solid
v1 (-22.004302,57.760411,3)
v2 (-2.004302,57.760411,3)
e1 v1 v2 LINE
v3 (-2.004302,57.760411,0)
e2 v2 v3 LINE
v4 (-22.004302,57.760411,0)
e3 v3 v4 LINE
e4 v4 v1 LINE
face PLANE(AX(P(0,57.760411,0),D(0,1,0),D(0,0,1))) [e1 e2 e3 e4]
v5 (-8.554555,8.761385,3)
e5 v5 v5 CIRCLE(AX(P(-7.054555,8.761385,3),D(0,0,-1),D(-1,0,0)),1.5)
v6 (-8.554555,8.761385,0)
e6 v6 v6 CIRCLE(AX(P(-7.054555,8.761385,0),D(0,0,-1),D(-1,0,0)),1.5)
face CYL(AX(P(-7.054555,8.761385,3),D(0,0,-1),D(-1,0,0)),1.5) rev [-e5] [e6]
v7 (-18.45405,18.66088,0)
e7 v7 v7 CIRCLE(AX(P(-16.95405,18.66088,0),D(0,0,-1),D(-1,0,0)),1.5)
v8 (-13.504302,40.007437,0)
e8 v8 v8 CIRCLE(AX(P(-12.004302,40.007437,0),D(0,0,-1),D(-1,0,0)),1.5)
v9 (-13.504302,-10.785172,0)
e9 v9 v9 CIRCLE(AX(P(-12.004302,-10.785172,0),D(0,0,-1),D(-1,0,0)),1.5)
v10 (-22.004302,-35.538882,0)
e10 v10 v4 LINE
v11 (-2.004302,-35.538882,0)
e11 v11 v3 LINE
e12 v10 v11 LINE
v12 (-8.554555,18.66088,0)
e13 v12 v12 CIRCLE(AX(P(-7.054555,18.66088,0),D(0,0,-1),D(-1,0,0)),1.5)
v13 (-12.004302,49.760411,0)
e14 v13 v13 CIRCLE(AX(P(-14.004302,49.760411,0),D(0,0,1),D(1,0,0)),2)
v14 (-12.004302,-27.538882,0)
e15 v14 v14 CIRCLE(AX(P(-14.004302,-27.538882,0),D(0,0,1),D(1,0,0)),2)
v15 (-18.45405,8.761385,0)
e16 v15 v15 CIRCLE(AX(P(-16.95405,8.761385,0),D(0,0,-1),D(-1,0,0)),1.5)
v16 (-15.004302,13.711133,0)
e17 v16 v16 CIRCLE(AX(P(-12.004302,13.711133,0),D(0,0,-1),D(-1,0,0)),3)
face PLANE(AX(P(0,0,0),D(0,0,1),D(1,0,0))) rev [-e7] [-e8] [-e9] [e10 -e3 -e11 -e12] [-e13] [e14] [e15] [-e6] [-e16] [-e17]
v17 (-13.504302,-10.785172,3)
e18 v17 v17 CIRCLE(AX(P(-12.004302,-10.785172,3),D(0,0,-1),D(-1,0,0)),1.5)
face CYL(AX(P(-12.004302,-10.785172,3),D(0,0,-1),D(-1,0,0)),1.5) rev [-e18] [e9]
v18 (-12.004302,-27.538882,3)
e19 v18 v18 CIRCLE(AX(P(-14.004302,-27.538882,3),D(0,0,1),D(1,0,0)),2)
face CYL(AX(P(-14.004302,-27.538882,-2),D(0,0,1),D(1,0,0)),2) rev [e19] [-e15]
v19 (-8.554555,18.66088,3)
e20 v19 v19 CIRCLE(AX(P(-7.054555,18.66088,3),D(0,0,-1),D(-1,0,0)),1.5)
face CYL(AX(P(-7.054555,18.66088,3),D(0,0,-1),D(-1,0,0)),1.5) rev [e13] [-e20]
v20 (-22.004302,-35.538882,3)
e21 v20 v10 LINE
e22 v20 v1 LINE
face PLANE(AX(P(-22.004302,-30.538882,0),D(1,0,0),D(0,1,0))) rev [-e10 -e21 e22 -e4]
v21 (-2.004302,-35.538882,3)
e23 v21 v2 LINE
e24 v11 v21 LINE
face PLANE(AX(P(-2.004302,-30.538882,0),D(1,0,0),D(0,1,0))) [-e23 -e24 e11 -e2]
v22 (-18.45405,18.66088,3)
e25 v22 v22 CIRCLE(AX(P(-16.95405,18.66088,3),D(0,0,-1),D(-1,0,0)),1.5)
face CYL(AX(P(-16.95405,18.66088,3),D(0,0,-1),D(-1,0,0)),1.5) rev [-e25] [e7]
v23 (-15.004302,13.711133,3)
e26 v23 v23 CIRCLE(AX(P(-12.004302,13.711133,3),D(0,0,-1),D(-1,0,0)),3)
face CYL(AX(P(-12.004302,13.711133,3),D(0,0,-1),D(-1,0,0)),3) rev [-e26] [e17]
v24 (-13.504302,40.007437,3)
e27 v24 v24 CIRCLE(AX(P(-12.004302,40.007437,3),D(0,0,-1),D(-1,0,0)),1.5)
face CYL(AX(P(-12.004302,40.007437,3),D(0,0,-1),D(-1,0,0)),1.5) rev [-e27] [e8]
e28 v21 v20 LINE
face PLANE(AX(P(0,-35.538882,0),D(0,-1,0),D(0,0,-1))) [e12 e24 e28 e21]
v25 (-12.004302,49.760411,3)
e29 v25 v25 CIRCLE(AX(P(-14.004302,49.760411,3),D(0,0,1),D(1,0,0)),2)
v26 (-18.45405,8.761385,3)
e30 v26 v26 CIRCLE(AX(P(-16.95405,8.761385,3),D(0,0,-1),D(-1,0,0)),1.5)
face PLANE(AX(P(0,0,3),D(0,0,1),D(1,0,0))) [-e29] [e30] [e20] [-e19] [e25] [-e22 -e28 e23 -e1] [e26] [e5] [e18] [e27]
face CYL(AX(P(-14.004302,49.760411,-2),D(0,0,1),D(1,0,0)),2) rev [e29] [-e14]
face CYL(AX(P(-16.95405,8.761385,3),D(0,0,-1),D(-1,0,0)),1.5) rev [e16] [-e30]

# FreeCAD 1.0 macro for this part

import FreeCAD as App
import Part
import Sketcher
from FreeCAD import Vector
Q = App.Units.Quantity

doc = App.newDocument("Part")
body = doc.addObject("PartDesign::Body", "Body")

# Sketch on XY plane
sketch1 = doc.addObject("Sketcher::SketchObject", "Sketch")
body.addObject(sketch1)
sketch1.AttachmentSupport = (doc.XY_Plane, [""])
sketch1.MapMode = "FlatFace"
sketch1.addGeometry(Part.LineSegment(Vector(-85.471866, 52.760411, 0), Vector(-85.471866, -52.760411, 0)), False)
sketch1.addGeometry(Part.LineSegment(Vector(-85.471866, -52.760411, 0), Vector(85.471866, -52.760411, 0)), False)
sketch1.addGeometry(Part.LineSegment(Vector(85.471866, -52.760411, 0), Vector(85.471866, 52.760411, 0)), False)
sketch1.addGeometry(Part.LineSegment(Vector(85.471866, 52.760411, 0), Vector(-85.471866, 52.760411, 0)), False)
sketch1.addConstraint(Sketcher.Constraint("Coincident", 0, 2, 1, 1))
sketch1.addConstraint(Sketcher.Constraint("Coincident", 1, 2, 2, 1))
sketch1.addConstraint(Sketcher.Constraint("Coincident", 2, 2, 3, 1))
sketch1.addConstraint(Sketcher.Constraint("Coincident", 3, 2, 0, 1))
sketch1.addConstraint(Sketcher.Constraint("Vertical", 0))
sketch1.addConstraint(Sketcher.Constraint("Horizontal", 1))
sketch1.addConstraint(Sketcher.Constraint("Vertical", 2))
sketch1.addConstraint(Sketcher.Constraint("Horizontal", 3))
sketch1.addConstraint(Sketcher.Constraint("Symmetric", 0, 2, 2, 2, -1, 1))
sketch1.addConstraint(Sketcher.Constraint("DistanceX", 1, 1, 1, 2, Q("170.943733 mm")))
sketch1.addConstraint(Sketcher.Constraint("DistanceY", 0, 2, 0, 1, Q("105.520823 mm")))
pad1 = doc.addObject("PartDesign::Pad", "Pad")
body.addObject(pad1)
pad1.Profile = sketch1
pad1.Length = 3

# Sketch on XY plane
sketch2 = doc.addObject("Sketcher::SketchObject", "Sketch001")
body.addObject(sketch2)
sketch2.AttachmentSupport = (doc.XY_Plane, [""])
sketch2.MapMode = "FlatFace"
sketch2.AttachmentOffset = App.Placement(Vector(0, 0, 3), App.Rotation())
sketch2.addGeometry(Part.LineSegment(Vector(-106.563, 73.851, 0), Vector(-106.563, -73.851, 0)), False)
sketch2.addGeometry(Part.LineSegment(Vector(-106.563, -73.851, 0), Vector(106.563, -73.851, 0)), False)
sketch2.addGeometry(Part.LineSegment(Vector(106.563, -73.851, 0), Vector(106.563, 73.851, 0)), False)
sketch2.addGeometry(Part.LineSegment(Vector(106.563, 73.851, 0), Vector(-106.563, 73.851, 0)), False)
sketch2.addGeometry(Part.LineSegment(Vector(-2.004302, -30.538882, 0), Vector(-22.004302, -30.538882, 0)), False)
sketch2.addGeometry(Part.LineSegment(Vector(-22.004302, -30.538882, 0), Vector(-22.004302, 57.961147, 0)), False)
sketch2.addGeometry(Part.LineSegment(Vector(-22.004302, 57.961147, 0), Vector(-2.004302, 57.961147, 0)), False)
sketch2.addGeometry(Part.LineSegment(Vector(-2.004302, 57.961147, 0), Vector(-2.004302, -30.538882, 0)), False)
sketch2.addConstraint(Sketcher.Constraint("Coincident", 0, 2, 1, 1))
sketch2.addConstraint(Sketcher.Constraint("Coincident", 1, 2, 2, 1))
sketch2.addConstraint(Sketcher.Constraint("Coincident", 2, 2, 3, 1))
sketch2.addConstraint(Sketcher.Constraint("Coincident", 3, 2, 0, 1))
sketch2.addConstraint(Sketcher.Constraint("Coincident", 4, 2, 5, 1))
sketch2.addConstraint(Sketcher.Constraint("Coincident", 5, 2, 6, 1))
sketch2.addConstraint(Sketcher.Constraint("Coincident", 6, 2, 7, 1))
sketch2.addConstraint(Sketcher.Constraint("Coincident", 7, 2, 4, 1))
sketch2.addConstraint(Sketcher.Constraint("Vertical", 0))
sketch2.addConstraint(Sketcher.Constraint("Horizontal", 1))
sketch2.addConstraint(Sketcher.Constraint("Vertical", 2))
sketch2.addConstraint(Sketcher.Constraint("Horizontal", 3))
sketch2.addConstraint(Sketcher.Constraint("Horizontal", 4))
sketch2.addConstraint(Sketcher.Constraint("Vertical", 5))
sketch2.addConstraint(Sketcher.Constraint("Horizontal", 6))
sketch2.addConstraint(Sketcher.Constraint("Vertical", 7))
sketch2.addConstraint(Sketcher.Constraint("Symmetric", 0, 2, 2, 2, -1, 1))
sketch2.addConstraint(Sketcher.Constraint("DistanceX", 4, 2, 4, 1, Q("20 mm")))
sketch2.addConstraint(Sketcher.Constraint("DistanceX", 1, 1, 1, 2, Q("213.126 mm")))
sketch2.addConstraint(Sketcher.Constraint("DistanceY", 0, 2, 0, 1, Q("147.702 mm")))
sketch2.addConstraint(Sketcher.Constraint("DistanceY", 5, 1, 5, 2, Q("88.500029 mm")))
sketch2.addConstraint(Sketcher.Constraint("DistanceY", 4, 2, -1, 1, Q("30.538882 mm")))
sketch2.addConstraint(Sketcher.Constraint("DistanceX", 4, 2, -1, 1, Q("22.004302 mm")))
pocket1 = doc.addObject("PartDesign::Pocket", "Pocket")
body.addObject(pocket1)
pocket1.Profile = sketch2
pocket1.Type = "ThroughAll"

# Sketch on XY plane
sketch3 = doc.addObject("Sketcher::SketchObject", "Sketch002")
body.addObject(sketch3)
sketch3.AttachmentSupport = (doc.XY_Plane, [""])
sketch3.MapMode = "FlatFace"
sketch3.addGeometry(Part.Circle(Vector(-7.054555, 18.66088, 0), Vector(0, 0, 1), 1.5), False)
sketch3.addGeometry(Part.Circle(Vector(-16.95405, 18.66088, 0), Vector(0, 0, 1), 1.5), False)
sketch3.addGeometry(Part.Circle(Vector(-16.95405, 8.761385, 0), Vector(0, 0, 1), 1.5), False)
sketch3.addGeometry(Part.Circle(Vector(-7.054555, 8.761385, 0), Vector(0, 0, 1), 1.5), False)
sketch3.addGeometry(Part.Circle(Vector(-12.004302, 13.711133, 0), Vector(0, 0, 1), 3), False)
sketch3.addConstraint(Sketcher.Constraint("Equal", 0, 1))
sketch3.addConstraint(Sketcher.Constraint("Equal", 1, 2))
sketch3.addConstraint(Sketcher.Constraint("Equal", 2, 3))
sketch3.addConstraint(Sketcher.Constraint("Horizontal", 0, 3, 1, 3))
sketch3.addConstraint(Sketcher.Constraint("Horizontal", 2, 3, 3, 3))
sketch3.addConstraint(Sketcher.Constraint("Vertical", 1, 3, 2, 3))
sketch3.addConstraint(Sketcher.Constraint("Vertical", 0, 3, 3, 3))
sketch3.addConstraint(Sketcher.Constraint("Diameter", 0, Q("3 mm")))
sketch3.addConstraint(Sketcher.Constraint("Diameter", 4, Q("6 mm")))
sketch3.addConstraint(Sketcher.Constraint("DistanceY", -1, 1, 0, 3, Q("18.66088 mm")))
sketch3.addConstraint(Sketcher.Constraint("DistanceX", 1, 3, -1, 1, Q("16.95405 mm")))
sketch3.addConstraint(Sketcher.Constraint("DistanceX", 0, 3, -1, 1, Q("7.054555 mm")))
sketch3.addConstraint(Sketcher.Constraint("DistanceY", -1, 1, 2, 3, Q("8.761385 mm")))
sketch3.addConstraint(Sketcher.Constraint("DistanceX", 4, 3, -1, 1, Q("12.004302 mm")))
sketch3.addConstraint(Sketcher.Constraint("DistanceY", -1, 1, 4, 3, Q("13.711133 mm")))
pocket2 = doc.addObject("PartDesign::Pocket", "Pocket001")
body.addObject(pocket2)
pocket2.Profile = sketch3
pocket2.Type = "ThroughAll"
pocket2.Reversed = True

# Sketch on XY plane
sketch4 = doc.addObject("Sketcher::SketchObject", "Sketch003")
body.addObject(sketch4)
sketch4.AttachmentSupport = (doc.XY_Plane, [""])
sketch4.MapMode = "FlatFace"
sketch4.addGeometry(Part.Circle(Vector(-12.004302, 40.007437, 0), Vector(0, 0, 1), 1.5), False)
sketch4.addGeometry(Part.Circle(Vector(-12.004302, -10.785172, 0), Vector(0, 0, 1), 1.5), False)
sketch4.addConstraint(Sketcher.Constraint("Equal", 0, 1))
sketch4.addConstraint(Sketcher.Constraint("Vertical", 0, 3, 1, 3))
sketch4.addConstraint(Sketcher.Constraint("Diameter", 0, Q("3 mm")))
sketch4.addConstraint(Sketcher.Constraint("DistanceY", 1, 3, -1, 1, Q("10.785172 mm")))
sketch4.addConstraint(Sketcher.Constraint("DistanceY", 1, 3, 0, 3, Q("50.792609 mm")))
sketch4.addConstraint(Sketcher.Constraint("DistanceX", 0, 3, -1, 1, Q("12.004302 mm")))
pocket3 = doc.addObject("PartDesign::Pocket", "Pocket002")
body.addObject(pocket3)
pocket3.Profile = sketch4
pocket3.Type = "ThroughAll"
pocket3.Reversed = True

# Sketch on XZ plane
sketch5 = doc.addObject("Sketcher::SketchObject", "Sketch004")
body.addObject(sketch5)
sketch5.AttachmentSupport = (doc.XZ_Plane, [""])
sketch5.MapMode = "FlatFace"
sketch5.AttachmentOffset = App.Placement(Vector(0, 0, -52.760411), App.Rotation())
sketch5.addGeometry(Part.LineSegment(Vector(-22.004302, 0, 0), Vector(-22.004302, 3, 0)), False)
sketch5.addGeometry(Part.LineSegment(Vector(-22.004302, 3, 0), Vector(-2.004302, 3, 0)), False)
sketch5.addGeometry(Part.LineSegment(Vector(-2.004302, 3, 0), Vector(-2.004302, 0, 0)), False)
sketch5.addGeometry(Part.LineSegment(Vector(-2.004302, 0, 0), Vector(-22.004302, 0, 0)), False)
sketch5.addConstraint(Sketcher.Constraint("Coincident", 0, 2, 1, 1))
sketch5.addConstraint(Sketcher.Constraint("Coincident", 1, 2, 2, 1))
sketch5.addConstraint(Sketcher.Constraint("Coincident", 2, 2, 3, 1))
sketch5.addConstraint(Sketcher.Constraint("Coincident", 3, 2, 0, 1))
sketch5.addConstraint(Sketcher.Constraint("Vertical", 0))
sketch5.addConstraint(Sketcher.Constraint("Horizontal", 1))
sketch5.addConstraint(Sketcher.Constraint("Vertical", 2))
sketch5.addConstraint(Sketcher.Constraint("Horizontal", 3))
sketch5.addConstraint(Sketcher.Constraint("PointOnObject", 2, 2, -1))
sketch5.addConstraint(Sketcher.Constraint("DistanceX", 1, 1, 1, 2, Q("20 mm")))
sketch5.addConstraint(Sketcher.Constraint("DistanceY", 0, 1, 0, 2, Q("3 mm")))
sketch5.addConstraint(Sketcher.Constraint("DistanceX", 0, 2, -1, 1, Q("22.004302 mm")))
pad2 = doc.addObject("PartDesign::Pad", "Pad001")
body.addObject(pad2)
pad2.Profile = sketch5
pad2.Length = 5
pad2.Reversed = True

# Sketch on XZ plane
sketch6 = doc.addObject("Sketcher::SketchObject", "Sketch005")
body.addObject(sketch6)
sketch6.AttachmentSupport = (doc.XZ_Plane, [""])
sketch6.MapMode = "FlatFace"
sketch6.AttachmentOffset = App.Placement(Vector(0, 0, 30.538882), App.Rotation())
sketch6.addGeometry(Part.LineSegment(Vector(-22.004302, 3, 0), Vector(-22.004302, 0, 0)), False)
sketch6.addGeometry(Part.LineSegment(Vector(-22.004302, 0, 0), Vector(-2.004302, 0, 0)), False)
sketch6.addGeometry(Part.LineSegment(Vector(-2.004302, 0, 0), Vector(-2.004302, 3, 0)), False)
sketch6.addGeometry(Part.LineSegment(Vector(-2.004302, 3, 0), Vector(-22.004302, 3, 0)), False)
sketch6.addConstraint(Sketcher.Constraint("Coincident", 0, 2, 1, 1))
sketch6.addConstraint(Sketcher.Constraint("Coincident", 1, 2, 2, 1))
sketch6.addConstraint(Sketcher.Constraint("Coincident", 2, 2, 3, 1))
sketch6.addConstraint(Sketcher.Constraint("Coincident", 3, 2, 0, 1))
sketch6.addConstraint(Sketcher.Constraint("Vertical", 0))
sketch6.addConstraint(Sketcher.Constraint("Horizontal", 1))
sketch6.addConstraint(Sketcher.Constraint("Vertical", 2))
sketch6.addConstraint(Sketcher.Constraint("Horizontal", 3))
sketch6.addConstraint(Sketcher.Constraint("PointOnObject", 0, 2, -1))
sketch6.addConstraint(Sketcher.Constraint("DistanceX", 1, 1, 1, 2, Q("20 mm")))
sketch6.addConstraint(Sketcher.Constraint("DistanceY", 0, 2, 0, 1, Q("3 mm")))
sketch6.addConstraint(Sketcher.Constraint("DistanceX", 0, 2, -1, 1, Q("22.004302 mm")))
pad3 = doc.addObject("PartDesign::Pad", "Pad002")
body.addObject(pad3)
pad3.Profile = sketch6
pad3.Length = 5

# Sketch on XY plane
sketch7 = doc.addObject("Sketcher::SketchObject", "Sketch006")
body.addObject(sketch7)
sketch7.AttachmentSupport = (doc.XY_Plane, [""])
sketch7.MapMode = "FlatFace"
sketch7.AttachmentOffset = App.Placement(Vector(0, 0, 3), App.Rotation())
sketch7.addGeometry(Part.Circle(Vector(-14.004302, 49.760411, 0), Vector(0, 0, 1), 2), False)
sketch7.addGeometry(Part.Circle(Vector(-14.004302, -27.538882, 0), Vector(0, 0, 1), 2), False)
sketch7.addConstraint(Sketcher.Constraint("Equal", 0, 1))
sketch7.addConstraint(Sketcher.Constraint("Vertical", 0, 3, 1, 3))
sketch7.addConstraint(Sketcher.Constraint("Diameter", 0, Q("4 mm")))
sketch7.addConstraint(Sketcher.Constraint("DistanceY", -1, 1, 0, 3, Q("49.760411 mm")))
sketch7.addConstraint(Sketcher.Constraint("DistanceY", 1, 3, -1, 1, Q("27.538882 mm")))
sketch7.addConstraint(Sketcher.Constraint("DistanceX", 0, 3, -1, 1, Q("14.004302 mm")))
pocket4 = doc.addObject("PartDesign::Pocket", "Pocket003")
body.addObject(pocket4)
pocket4.Profile = sketch7
pocket4.Length = 5

doc.recompute()
